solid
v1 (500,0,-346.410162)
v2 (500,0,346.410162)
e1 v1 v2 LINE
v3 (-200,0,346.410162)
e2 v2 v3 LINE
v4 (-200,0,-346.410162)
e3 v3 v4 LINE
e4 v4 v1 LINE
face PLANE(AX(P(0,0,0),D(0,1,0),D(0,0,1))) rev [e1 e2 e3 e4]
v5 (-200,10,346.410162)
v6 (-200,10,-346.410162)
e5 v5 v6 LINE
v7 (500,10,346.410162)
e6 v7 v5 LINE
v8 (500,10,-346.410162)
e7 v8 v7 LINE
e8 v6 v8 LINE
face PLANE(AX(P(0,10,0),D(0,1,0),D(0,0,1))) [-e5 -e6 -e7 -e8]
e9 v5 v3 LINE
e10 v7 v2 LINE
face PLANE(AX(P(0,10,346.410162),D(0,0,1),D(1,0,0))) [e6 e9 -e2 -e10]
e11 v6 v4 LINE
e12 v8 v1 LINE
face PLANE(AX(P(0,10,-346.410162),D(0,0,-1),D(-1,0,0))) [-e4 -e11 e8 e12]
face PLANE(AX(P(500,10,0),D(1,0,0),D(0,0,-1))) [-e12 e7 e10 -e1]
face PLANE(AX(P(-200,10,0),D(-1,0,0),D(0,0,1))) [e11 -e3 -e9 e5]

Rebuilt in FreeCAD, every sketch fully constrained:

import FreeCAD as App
import Part
import Sketcher

V = App.Vector

doc = App.newDocument("Part")
params = doc.addObject("Spreadsheet::Sheet", "Params")
for row, (alias, value) in enumerate([
    ("sketch1_width", "700 mm"),
    ("pad1_length", "10 mm"),
], start=1):
    params.set(f"A{row}", alias)
    params.set(f"B{row}", "=" + value)
    params.setAlias(f"B{row}", alias)

body = doc.addObject("PartDesign::Body", "Body")

# Sketch on XZ plane
sketch1 = body.newObject("Sketcher::SketchObject", "Sketch")
sketch1.AttachmentSupport = (doc.getObject("XZ_Plane"), [""])
sketch1.MapMode = "FlatFace"
sketch1.addGeometry(Part.LineSegment(V(-200, -346, 0), V(-200, 346, 0)), False)
sketch1.addGeometry(Part.LineSegment(V(-200, 346, 0), V(500, 346, 0)), False)
sketch1.addGeometry(Part.LineSegment(V(500, 346, 0), V(500, -346, 0)), False)
sketch1.addGeometry(Part.LineSegment(V(500, -346, 0), V(-200, -346, 0)), False)
sketch1.addConstraint(Sketcher.Constraint("Coincident", 0, 2, 1, 1))
sketch1.addConstraint(Sketcher.Constraint("Coincident", 1, 2, 2, 1))
sketch1.addConstraint(Sketcher.Constraint("Coincident", 2, 2, 3, 1))
sketch1.addConstraint(Sketcher.Constraint("Coincident", 3, 2, 0, 1))
sketch1.addConstraint(Sketcher.Constraint("Vertical", 0))
sketch1.addConstraint(Sketcher.Constraint("Horizontal", 1))
sketch1.addConstraint(Sketcher.Constraint("Vertical", 2))
sketch1.addConstraint(Sketcher.Constraint("Horizontal", 3))
sketch1.addConstraint(Sketcher.Constraint("DistanceX", 1, 1, 1, 2, 700.0))
sketch1.addConstraint(Sketcher.Constraint("DistanceX", 0, 2, -1, 1, 200.0))
sketch1.addConstraint(Sketcher.Constraint("DistanceY", 0, 1, 0, 2, 692.820323))
sketch1.addConstraint(Sketcher.Constraint("DistanceY", -1, 1, 0, 2, 346.410162))
sketch1.setExpression("Constraints[8]", "Params.sketch1_width")
pad1 = body.newObject("PartDesign::Pad", "Pad")
pad1.Profile = sketch1
pad1.setExpression("Length", "Params.pad1_length")
pad1.Reversed = True

doc.recompute()
